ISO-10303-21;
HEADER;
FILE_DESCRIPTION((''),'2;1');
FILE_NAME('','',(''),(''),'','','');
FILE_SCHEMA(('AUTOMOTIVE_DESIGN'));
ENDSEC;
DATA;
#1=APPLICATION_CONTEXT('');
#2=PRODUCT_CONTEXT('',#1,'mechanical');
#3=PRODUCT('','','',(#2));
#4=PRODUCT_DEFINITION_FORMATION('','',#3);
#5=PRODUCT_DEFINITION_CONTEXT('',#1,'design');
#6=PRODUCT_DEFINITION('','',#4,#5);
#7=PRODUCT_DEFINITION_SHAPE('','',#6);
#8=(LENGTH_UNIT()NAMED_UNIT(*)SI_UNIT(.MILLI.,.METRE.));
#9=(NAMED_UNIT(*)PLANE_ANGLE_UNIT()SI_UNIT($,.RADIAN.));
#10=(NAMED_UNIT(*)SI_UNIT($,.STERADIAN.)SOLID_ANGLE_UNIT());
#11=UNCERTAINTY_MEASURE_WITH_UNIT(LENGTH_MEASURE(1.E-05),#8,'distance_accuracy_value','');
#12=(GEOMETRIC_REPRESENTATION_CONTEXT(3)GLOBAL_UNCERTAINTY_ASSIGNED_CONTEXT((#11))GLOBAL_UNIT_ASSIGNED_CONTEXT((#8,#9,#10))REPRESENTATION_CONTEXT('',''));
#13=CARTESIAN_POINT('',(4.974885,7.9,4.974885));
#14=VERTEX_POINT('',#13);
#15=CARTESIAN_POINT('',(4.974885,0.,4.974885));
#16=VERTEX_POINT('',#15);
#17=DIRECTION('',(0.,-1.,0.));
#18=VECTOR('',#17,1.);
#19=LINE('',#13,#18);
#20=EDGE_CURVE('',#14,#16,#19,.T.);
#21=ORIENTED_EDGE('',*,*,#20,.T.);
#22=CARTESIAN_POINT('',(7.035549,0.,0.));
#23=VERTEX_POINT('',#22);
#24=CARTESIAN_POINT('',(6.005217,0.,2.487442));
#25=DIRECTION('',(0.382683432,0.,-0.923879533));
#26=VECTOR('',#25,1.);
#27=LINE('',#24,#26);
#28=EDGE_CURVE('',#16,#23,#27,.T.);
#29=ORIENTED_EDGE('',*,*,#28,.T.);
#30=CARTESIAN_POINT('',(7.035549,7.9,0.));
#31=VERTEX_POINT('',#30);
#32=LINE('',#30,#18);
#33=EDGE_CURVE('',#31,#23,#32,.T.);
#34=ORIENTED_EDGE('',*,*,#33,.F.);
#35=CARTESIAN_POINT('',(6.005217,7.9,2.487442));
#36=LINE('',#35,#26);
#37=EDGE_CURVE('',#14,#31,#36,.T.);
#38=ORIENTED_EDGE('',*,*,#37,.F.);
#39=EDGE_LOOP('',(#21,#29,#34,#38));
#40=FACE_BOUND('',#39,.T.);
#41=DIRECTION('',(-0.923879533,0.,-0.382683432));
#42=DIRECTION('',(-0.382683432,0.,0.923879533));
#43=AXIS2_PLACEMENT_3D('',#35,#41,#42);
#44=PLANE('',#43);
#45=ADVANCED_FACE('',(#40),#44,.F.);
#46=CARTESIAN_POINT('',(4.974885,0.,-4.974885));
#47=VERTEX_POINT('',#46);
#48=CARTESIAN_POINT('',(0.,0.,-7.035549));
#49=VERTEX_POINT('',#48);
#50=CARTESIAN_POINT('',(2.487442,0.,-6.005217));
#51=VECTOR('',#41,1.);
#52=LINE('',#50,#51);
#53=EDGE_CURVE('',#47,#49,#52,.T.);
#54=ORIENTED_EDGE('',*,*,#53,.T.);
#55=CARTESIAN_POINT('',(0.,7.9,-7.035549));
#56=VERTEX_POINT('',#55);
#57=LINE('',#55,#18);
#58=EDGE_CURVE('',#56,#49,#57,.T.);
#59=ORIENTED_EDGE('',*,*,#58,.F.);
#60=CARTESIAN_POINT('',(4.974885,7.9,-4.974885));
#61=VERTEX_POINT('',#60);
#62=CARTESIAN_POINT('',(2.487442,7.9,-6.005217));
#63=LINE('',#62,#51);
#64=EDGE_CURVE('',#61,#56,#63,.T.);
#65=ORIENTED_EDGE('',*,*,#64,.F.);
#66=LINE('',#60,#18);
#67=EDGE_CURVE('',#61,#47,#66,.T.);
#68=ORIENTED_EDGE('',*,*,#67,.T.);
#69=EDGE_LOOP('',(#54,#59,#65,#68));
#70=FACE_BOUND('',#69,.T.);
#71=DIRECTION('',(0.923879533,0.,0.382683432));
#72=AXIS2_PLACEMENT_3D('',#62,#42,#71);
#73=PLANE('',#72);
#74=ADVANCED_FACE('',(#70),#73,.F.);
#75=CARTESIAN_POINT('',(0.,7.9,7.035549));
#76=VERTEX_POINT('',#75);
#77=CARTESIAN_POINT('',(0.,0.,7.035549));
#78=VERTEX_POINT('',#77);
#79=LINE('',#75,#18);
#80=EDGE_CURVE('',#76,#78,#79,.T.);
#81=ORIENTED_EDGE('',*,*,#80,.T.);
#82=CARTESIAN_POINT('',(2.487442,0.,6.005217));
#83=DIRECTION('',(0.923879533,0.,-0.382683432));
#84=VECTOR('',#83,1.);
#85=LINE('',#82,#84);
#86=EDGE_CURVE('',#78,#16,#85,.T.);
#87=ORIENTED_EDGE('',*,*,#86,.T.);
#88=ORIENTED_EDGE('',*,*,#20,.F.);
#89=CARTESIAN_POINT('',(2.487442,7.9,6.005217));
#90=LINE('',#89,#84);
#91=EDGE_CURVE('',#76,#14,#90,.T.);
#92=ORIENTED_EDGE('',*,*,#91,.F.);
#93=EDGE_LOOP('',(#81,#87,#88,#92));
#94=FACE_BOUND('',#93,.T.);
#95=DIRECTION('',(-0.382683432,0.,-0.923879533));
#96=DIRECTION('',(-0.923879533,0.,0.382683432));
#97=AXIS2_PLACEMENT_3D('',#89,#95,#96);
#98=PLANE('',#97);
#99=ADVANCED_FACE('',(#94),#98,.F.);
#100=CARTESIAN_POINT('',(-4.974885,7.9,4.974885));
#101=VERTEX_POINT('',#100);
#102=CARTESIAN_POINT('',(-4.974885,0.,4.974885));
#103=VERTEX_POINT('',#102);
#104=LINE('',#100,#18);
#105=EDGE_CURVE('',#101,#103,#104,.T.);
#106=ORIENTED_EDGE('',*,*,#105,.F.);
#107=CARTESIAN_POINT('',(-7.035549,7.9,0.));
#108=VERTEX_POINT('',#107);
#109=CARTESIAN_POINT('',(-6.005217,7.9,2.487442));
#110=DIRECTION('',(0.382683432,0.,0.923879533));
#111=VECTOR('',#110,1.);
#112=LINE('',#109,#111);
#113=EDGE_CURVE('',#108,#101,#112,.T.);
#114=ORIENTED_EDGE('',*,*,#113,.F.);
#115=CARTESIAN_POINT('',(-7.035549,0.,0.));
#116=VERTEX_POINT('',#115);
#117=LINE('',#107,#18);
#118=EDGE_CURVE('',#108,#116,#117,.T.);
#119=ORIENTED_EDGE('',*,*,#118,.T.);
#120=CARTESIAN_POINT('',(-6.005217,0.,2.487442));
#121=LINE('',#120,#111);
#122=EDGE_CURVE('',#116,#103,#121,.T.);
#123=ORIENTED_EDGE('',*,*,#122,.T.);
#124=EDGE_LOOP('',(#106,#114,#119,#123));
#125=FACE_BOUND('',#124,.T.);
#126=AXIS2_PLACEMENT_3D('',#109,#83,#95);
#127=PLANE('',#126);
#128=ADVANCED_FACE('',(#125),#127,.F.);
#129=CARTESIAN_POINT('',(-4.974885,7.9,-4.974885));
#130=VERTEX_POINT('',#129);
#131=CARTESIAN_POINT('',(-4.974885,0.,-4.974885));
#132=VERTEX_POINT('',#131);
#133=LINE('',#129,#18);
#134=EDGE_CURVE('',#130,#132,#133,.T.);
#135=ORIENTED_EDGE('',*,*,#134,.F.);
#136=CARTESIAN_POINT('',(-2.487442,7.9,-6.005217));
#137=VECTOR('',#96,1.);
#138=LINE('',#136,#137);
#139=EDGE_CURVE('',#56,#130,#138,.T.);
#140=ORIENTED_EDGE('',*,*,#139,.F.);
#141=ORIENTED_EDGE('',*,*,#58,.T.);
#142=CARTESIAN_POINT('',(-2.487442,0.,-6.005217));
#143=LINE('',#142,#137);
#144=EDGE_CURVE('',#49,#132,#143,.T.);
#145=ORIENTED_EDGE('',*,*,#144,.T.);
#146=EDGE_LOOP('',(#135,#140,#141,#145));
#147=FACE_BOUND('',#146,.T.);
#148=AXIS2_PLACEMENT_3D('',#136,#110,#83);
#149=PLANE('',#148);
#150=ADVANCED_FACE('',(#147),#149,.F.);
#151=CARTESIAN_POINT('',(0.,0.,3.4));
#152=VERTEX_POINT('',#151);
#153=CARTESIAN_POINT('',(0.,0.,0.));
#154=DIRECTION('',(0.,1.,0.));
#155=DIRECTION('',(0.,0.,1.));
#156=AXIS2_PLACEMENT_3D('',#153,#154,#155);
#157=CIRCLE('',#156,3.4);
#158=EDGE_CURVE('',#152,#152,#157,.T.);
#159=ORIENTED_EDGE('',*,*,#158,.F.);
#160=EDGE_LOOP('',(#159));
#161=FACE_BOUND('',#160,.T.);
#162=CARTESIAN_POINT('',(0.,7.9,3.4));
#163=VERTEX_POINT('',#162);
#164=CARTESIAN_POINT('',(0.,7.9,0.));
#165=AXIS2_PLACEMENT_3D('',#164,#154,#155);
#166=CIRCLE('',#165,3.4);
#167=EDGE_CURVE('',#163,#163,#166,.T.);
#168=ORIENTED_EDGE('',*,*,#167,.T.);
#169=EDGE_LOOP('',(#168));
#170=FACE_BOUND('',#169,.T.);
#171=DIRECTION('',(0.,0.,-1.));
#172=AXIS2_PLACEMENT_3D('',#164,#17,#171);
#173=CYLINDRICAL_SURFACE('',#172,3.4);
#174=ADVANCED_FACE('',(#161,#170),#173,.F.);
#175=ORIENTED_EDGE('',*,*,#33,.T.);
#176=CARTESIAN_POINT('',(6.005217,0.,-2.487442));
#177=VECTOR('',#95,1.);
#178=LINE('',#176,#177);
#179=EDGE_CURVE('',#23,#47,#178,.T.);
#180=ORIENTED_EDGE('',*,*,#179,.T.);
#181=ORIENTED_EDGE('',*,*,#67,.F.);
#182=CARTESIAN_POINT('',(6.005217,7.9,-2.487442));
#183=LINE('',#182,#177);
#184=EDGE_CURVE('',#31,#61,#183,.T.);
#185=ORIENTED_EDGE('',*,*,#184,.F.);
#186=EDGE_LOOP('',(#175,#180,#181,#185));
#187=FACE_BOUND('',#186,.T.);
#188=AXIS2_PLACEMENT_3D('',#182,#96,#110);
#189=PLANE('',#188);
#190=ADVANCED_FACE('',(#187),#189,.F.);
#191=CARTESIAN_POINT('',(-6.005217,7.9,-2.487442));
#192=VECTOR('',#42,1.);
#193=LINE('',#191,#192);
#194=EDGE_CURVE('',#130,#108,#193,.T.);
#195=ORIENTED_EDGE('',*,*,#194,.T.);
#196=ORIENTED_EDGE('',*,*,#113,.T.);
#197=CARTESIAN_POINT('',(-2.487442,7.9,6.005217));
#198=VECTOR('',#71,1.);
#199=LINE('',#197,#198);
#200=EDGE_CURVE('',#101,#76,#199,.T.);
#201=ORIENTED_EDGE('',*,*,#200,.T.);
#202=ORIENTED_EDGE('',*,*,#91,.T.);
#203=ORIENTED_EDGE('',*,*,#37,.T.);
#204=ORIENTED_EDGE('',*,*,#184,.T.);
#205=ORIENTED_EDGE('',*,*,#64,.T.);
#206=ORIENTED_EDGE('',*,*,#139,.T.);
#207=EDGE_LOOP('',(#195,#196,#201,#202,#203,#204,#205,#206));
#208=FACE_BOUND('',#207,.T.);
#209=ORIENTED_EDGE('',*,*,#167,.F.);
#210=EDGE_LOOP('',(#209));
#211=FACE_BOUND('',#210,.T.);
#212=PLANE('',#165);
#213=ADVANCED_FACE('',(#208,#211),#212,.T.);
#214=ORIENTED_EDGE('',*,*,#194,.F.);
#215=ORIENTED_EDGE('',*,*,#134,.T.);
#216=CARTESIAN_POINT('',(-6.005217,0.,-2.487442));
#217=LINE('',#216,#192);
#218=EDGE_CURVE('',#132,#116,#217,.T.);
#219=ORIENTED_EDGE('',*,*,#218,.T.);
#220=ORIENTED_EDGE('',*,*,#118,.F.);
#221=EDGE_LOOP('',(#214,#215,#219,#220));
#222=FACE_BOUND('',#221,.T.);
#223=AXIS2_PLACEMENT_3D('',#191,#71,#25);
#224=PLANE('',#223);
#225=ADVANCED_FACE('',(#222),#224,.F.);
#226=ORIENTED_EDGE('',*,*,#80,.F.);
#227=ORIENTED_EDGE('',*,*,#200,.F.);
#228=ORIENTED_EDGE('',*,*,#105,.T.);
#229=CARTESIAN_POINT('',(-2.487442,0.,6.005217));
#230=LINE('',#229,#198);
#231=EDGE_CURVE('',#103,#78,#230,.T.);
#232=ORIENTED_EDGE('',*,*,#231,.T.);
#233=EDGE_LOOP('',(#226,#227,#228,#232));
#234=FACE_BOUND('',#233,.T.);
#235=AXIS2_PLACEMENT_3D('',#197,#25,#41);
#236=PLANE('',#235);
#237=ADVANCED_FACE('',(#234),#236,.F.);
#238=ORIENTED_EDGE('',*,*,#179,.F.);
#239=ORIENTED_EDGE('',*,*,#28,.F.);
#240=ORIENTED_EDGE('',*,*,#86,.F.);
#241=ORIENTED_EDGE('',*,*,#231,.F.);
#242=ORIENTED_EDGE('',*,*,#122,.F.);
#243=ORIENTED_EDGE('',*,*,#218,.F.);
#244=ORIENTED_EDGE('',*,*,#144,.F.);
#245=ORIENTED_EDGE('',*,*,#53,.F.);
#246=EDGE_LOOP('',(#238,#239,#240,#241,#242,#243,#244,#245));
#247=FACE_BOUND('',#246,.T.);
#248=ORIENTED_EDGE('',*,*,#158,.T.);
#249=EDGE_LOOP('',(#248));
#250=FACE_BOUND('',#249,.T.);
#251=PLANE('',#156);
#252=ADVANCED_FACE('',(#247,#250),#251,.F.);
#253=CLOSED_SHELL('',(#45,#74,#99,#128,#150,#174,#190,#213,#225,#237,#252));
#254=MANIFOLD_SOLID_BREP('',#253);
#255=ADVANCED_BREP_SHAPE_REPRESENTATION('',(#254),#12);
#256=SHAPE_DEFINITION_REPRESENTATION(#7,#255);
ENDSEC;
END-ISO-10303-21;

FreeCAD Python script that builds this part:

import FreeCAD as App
import Part
import Sketcher

V = App.Vector
Q = App.Units.Quantity

doc = App.newDocument("Part")
body = doc.addObject("PartDesign::Body", "Body")

sketch1 = body.newObject("Sketcher::SketchObject", "Sketch")
sketch1.AttachmentSupport = (doc.getObject("XZ_Plane"), [""])
sketch1.MapMode = "FlatFace"
sketch1.addGeometry([
    Part.LineSegment(V(0, 7, 0), V(5, 5, 0)),
    Part.LineSegment(V(5, 5, 0), V(7, 0, 0)),
    Part.LineSegment(V(7, 0, 0), V(5, -5, 0)),
    Part.LineSegment(V(5, -5, 0), V(0, -7, 0)),
    Part.LineSegment(V(0, -7, 0), V(-5, -5, 0)),
    Part.LineSegment(V(-5, -5, 0), V(-7, 0, 0)),
    Part.LineSegment(V(-7, 0, 0), V(-5, 5, 0)),
    Part.LineSegment(V(-5, 5, 0), V(0, 7, 0)),
    Part.Circle(V(0, 0, 0), V(0, 0, 1), 3.4),
], False)
sketch1.addConstraint([
    Sketcher.Constraint("Coincident", 0, 2, 1, 1),
    Sketcher.Constraint("Coincident", 1, 2, 2, 1),
    Sketcher.Constraint("Coincident", 2, 2, 3, 1),
    Sketcher.Constraint("Coincident", 3, 2, 4, 1),
    Sketcher.Constraint("Coincident", 4, 2, 5, 1),
    Sketcher.Constraint("Coincident", 5, 2, 6, 1),
    Sketcher.Constraint("Coincident", 6, 2, 7, 1),
    Sketcher.Constraint("Coincident", 7, 2, 0, 1),
    Sketcher.Constraint("Coincident", 8, 3, -1, 1),
    Sketcher.Constraint("Symmetric", 0, 2, 4, 2, -1, 1),
    Sketcher.Constraint("Symmetric", 1, 2, 5, 2, -1, 1),
    Sketcher.Constraint("Symmetric", 2, 2, 6, 2, -1, 1),
    Sketcher.Constraint("Symmetric", 3, 2, 7, 2, -1, 1),
    Sketcher.Constraint("Symmetric", 2, 2, 4, 2, -2),
    Sketcher.Constraint("PointOnObject", 1, 2, -1),
    Sketcher.Constraint("PointOnObject", 3, 2, -2),
    Sketcher.Constraint("Perpendicular", 0, 2),
    Sketcher.Constraint("Equal", 0, 1),
    Sketcher.Constraint("Diameter", 8, 6.8),
    Sketcher.Constraint("Angle", 0, Q("-22.5 deg")),
    Sketcher.Constraint("DistanceX", -1, 1, 1, 2, 7.035549),
])
pad1 = body.newObject("PartDesign::Pad", "Pad")
pad1.Profile = sketch1
pad1.Length = 7.9
pad1.Reversed = True

doc.recompute()
